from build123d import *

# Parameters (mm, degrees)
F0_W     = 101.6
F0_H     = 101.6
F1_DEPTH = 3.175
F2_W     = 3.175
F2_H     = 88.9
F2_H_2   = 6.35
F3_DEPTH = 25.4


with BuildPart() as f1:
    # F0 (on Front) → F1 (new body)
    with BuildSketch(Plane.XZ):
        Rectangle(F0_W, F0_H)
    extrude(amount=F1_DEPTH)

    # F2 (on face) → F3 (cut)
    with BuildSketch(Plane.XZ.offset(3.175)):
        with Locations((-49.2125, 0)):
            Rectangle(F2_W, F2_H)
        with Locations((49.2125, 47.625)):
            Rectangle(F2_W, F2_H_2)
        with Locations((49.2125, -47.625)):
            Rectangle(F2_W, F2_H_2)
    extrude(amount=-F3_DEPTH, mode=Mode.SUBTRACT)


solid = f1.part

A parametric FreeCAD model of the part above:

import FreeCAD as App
import Part
import Sketcher
from FreeCAD import Vector
Q = App.Units.Quantity


def add_polygon(sketch, points):
    """Adds a closed chain of lines whose ends are joined by coincident constraints."""
    first, n = sketch.GeometryCount, len(points)
    for a, b in zip(points, points[1:] + points[:1]):
        sketch.addGeometry(Part.LineSegment(App.Vector(*a, 0), App.Vector(*b, 0)), False)
    for i in range(n):
        sketch.addConstraint(Sketcher.Constraint("Coincident", first + i, 2, first + (i + 1) % n, 1))

doc = App.newDocument("Part")
params = doc.addObject("Spreadsheet::Sheet", "Params")
for row, (alias, value) in enumerate([
    ("sketch1_width", "4 in"),
    ("pad1_length", "0.125 in"),
    ("sketch2_height", "3.5 in"),
    ("sketch2_width", "0.125 in"),
    ("pocket1_length", "1 in"),
], start=1):
    params.set(f"A{row}", alias)
    params.set(f"B{row}", "=" + value)
    params.setAlias(f"B{row}", alias)

body = doc.addObject("PartDesign::Body", "Body")

# Sketch on XZ plane
sketch1 = doc.addObject("Sketcher::SketchObject", "Sketch")
body.addObject(sketch1)
sketch1.AttachmentSupport = (doc.XZ_Plane, [""])
sketch1.MapMode = "FlatFace"
add_polygon(sketch1, [(-50.8, 50.8), (-50.8, -50.8), (50.8, -50.8), (50.8, 50.8)])  # lines 0-3
sketch1.addConstraint([
    Sketcher.Constraint("Vertical", 0),
    Sketcher.Constraint("Horizontal", 1),
    Sketcher.Constraint("Vertical", 2),
    Sketcher.Constraint("Horizontal", 3),
    Sketcher.Constraint("Symmetric", 0, 2, 2, 2, -1, 1),
    Sketcher.Constraint("Equal", 3, 0),
    Sketcher.Constraint("DistanceX", 1, 1, 1, 2, Q("4 in")),
])
sketch1.setExpression("Constraints[10]", "Params.sketch1_width")
pad1 = doc.addObject("PartDesign::Pad", "Pad")
body.addObject(pad1)
pad1.Profile = sketch1
pad1.setExpression("Length", "Params.pad1_length")

# Sketch on XZ plane
sketch2 = doc.addObject("Sketcher::SketchObject", "Sketch001")
body.addObject(sketch2)
sketch2.AttachmentSupport = (doc.XZ_Plane, [""])
sketch2.MapMode = "FlatFace"
sketch2.AttachmentOffset = App.Placement(Vector(0, 0, 0.125 * 25.4), App.Rotation())
add_polygon(sketch2, [(-50.8, 44.45), (-50.8, -44.45), (-47.625, -44.45), (-47.625, 44.45)])  # lines 0-3
add_polygon(sketch2, [(47.625, 50.8), (47.625, 44.45), (50.8, 44.45), (50.8, 50.8)])  # lines 4-7
add_polygon(sketch2, [(47.625, -44.45), (47.625, -50.8), (50.8, -50.8), (50.8, -44.45)])  # lines 8-11
sketch2.addConstraint([
    Sketcher.Constraint("Vertical", 0),
    Sketcher.Constraint("Horizontal", 1),
    Sketcher.Constraint("Vertical", 2),
    Sketcher.Constraint("Horizontal", 3),
    Sketcher.Constraint("Vertical", 4),
    Sketcher.Constraint("Horizontal", 5),
    Sketcher.Constraint("Vertical", 6),
    Sketcher.Constraint("Horizontal", 7),
    Sketcher.Constraint("Vertical", 8),
    Sketcher.Constraint("Horizontal", 9),
    Sketcher.Constraint("Vertical", 10),
    Sketcher.Constraint("Horizontal", 11),
    Sketcher.Constraint("Symmetric", 1, 2, 4, 2, -1, 1),
    Sketcher.Constraint("Symmetric", 3, 2, 10, 2, -1, 1),
    Sketcher.Constraint("Symmetric", 3, 2, 5, 2, -2),
    Sketcher.Constraint("Symmetric", 7, 2, 8, 2, -1),
    Sketcher.Constraint("DistanceY", 0, 2, 0, 1, Q("3.5 in")),
    Sketcher.Constraint("DistanceX", 0, 2, -1, 1, Q("2 in")),
    Sketcher.Constraint("DistanceY", -1, 1, 6, 2, Q("2 in")),
    Sketcher.Constraint("DistanceX", 1, 1, 1, 2, Q("0.125 in")),
])
sketch2.setExpression("Constraints[28]", "Params.sketch2_height")
sketch2.setExpression("Constraints[31]", "Params.sketch2_width")
pocket1 = doc.addObject("PartDesign::Pocket", "Pocket")
body.addObject(pocket1)
pocket1.Profile = sketch2
pocket1.setExpression("Length", "Params.pocket1_length")

doc.recompute()
